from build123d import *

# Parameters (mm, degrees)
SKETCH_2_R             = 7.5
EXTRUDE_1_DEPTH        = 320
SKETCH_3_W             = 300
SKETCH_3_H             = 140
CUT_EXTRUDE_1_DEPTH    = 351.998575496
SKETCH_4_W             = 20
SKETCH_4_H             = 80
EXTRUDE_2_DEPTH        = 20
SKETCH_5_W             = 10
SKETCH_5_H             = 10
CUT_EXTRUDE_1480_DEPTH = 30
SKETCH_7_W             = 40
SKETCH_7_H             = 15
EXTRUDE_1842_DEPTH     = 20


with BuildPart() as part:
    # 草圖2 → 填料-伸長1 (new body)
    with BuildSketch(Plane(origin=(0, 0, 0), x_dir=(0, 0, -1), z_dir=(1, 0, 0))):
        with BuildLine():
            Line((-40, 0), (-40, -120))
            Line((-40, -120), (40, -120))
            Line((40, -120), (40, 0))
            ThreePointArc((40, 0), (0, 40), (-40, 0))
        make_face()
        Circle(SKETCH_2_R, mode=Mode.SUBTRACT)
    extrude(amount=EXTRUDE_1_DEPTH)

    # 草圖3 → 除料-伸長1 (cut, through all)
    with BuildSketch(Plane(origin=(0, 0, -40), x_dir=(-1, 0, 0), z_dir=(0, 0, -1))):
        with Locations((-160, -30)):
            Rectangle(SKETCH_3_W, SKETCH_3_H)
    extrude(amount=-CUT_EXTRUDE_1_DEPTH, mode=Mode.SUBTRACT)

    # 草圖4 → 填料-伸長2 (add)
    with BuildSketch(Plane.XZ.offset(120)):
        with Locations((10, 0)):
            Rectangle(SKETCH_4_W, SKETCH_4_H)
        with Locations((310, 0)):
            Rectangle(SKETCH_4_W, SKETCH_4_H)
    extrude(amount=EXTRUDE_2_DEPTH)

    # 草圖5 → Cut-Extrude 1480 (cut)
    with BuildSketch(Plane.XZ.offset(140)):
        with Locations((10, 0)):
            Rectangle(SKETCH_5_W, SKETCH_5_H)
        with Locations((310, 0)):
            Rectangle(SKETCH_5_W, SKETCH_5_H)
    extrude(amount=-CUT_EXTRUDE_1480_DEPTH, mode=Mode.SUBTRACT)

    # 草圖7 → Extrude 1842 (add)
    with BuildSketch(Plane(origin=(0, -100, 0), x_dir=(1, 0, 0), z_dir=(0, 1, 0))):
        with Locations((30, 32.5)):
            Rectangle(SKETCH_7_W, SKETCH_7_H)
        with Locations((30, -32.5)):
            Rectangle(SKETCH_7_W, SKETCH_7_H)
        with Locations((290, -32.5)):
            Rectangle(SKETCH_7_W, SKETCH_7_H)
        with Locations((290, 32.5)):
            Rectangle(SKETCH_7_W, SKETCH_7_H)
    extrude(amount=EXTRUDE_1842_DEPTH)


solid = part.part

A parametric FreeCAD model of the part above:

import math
import FreeCAD as App
import Part
import Sketcher

V = App.Vector


def add_polygon(sketch, points):
    """Adds a closed chain of lines whose ends are joined by coincident constraints."""
    first, n = sketch.GeometryCount, len(points)
    for a, b in zip(points, points[1:] + points[:1]):
        sketch.addGeometry(Part.LineSegment(App.Vector(*a, 0), App.Vector(*b, 0)), False)
    for i in range(n):
        sketch.addConstraint(Sketcher.Constraint("Coincident", first + i, 2, first + (i + 1) % n, 1))

doc = App.newDocument("Part")
body = doc.addObject("PartDesign::Body", "Body")

# Sketch on YZ plane
sketch1 = body.newObject("Sketcher::SketchObject", "Sketch")
sketch1.AttachmentSupport = (doc.getObject("YZ_Plane"), [""])
sketch1.MapMode = "FlatFace"
sketch1.addGeometry([
    Part.LineSegment(V(0, 40, 0), V(-120, 40, 0)),  # 0
    Part.LineSegment(V(-120, 40, 0), V(-120, -40, 0)),  # 1
    Part.LineSegment(V(-120, -40, 0), V(0, -40, 0)),  # 2
    Part.ArcOfCircle(Part.Circle(V(0, 0, 0), V(0, 0, 1), 40), math.radians(-90), math.radians(90)),  # 3
    Part.Circle(V(0, 0, 0), V(0, 0, 1), 8),  # 4
], False)
sketch1.addConstraint([
    Sketcher.Constraint("Coincident", 0, 2, 1, 1),
    Sketcher.Constraint("Coincident", 1, 2, 2, 1),
    Sketcher.Constraint("Tangent", 2, 2, 3, 1),
    Sketcher.Constraint("Tangent", 3, 2, 0, 1),
    Sketcher.Constraint("Horizontal", 0),
    Sketcher.Constraint("Vertical", 1),
    Sketcher.Constraint("Horizontal", 2),
    Sketcher.Constraint("Coincident", 3, 3, -1, 1),
    Sketcher.Constraint("Coincident", 4, 3, -1, 1),
    Sketcher.Constraint("Diameter", 4, 15.0),
    Sketcher.Constraint("Radius", 3, 40.0),
    Sketcher.Constraint("DistanceX", 0, 2, 0, 1, 120.0),
])
pad1 = body.newObject("PartDesign::Pad", "Pad")
pad1.Profile = sketch1
pad1.Length = 320

# Sketch on XY plane
sketch2 = body.newObject("Sketcher::SketchObject", "Sketch001")
sketch2.AttachmentSupport = (doc.getObject("XY_Plane"), [""])
sketch2.MapMode = "FlatFace"
sketch2.AttachmentOffset = App.Placement(V(0, 0, -40), App.Rotation())
add_polygon(sketch2, [(310, 40), (310, -100), (10, -100), (10, 40)])  # lines 0-3
sketch2.addConstraint([
    Sketcher.Constraint("Vertical", 0),
    Sketcher.Constraint("Horizontal", 1),
    Sketcher.Constraint("Vertical", 2),
    Sketcher.Constraint("Horizontal", 3),
    Sketcher.Constraint("DistanceX", 1, 2, 1, 1, 300.0),
    Sketcher.Constraint("DistanceY", 0, 2, 0, 1, 140.0),
    Sketcher.Constraint("DistanceX", -1, 1, 0, 2, 310.0),
    Sketcher.Constraint("DistanceY", 0, 2, -1, 1, 100.0),
])
pocket1 = body.newObject("PartDesign::Pocket", "Pocket")
pocket1.Profile = sketch2
pocket1.Type = "ThroughAll"
pocket1.Reversed = True

# Sketch on XZ plane
sketch3 = body.newObject("Sketcher::SketchObject", "Sketch002")
sketch3.AttachmentSupport = (doc.getObject("XZ_Plane"), [""])
sketch3.MapMode = "FlatFace"
sketch3.AttachmentOffset = App.Placement(V(0, 0, 120), App.Rotation())
add_polygon(sketch3, [(0, 40), (0, -40), (20, -40), (20, 40)])  # lines 0-3
add_polygon(sketch3, [(300, 40), (300, -40), (320, -40), (320, 40)])  # lines 4-7
sketch3.addConstraint([
    Sketcher.Constraint("Vertical", 0),
    Sketcher.Constraint("Horizontal", 1),
    Sketcher.Constraint("Vertical", 2),
    Sketcher.Constraint("Horizontal", 3),
    Sketcher.Constraint("Vertical", 4),
    Sketcher.Constraint("Horizontal", 5),
    Sketcher.Constraint("Vertical", 6),
    Sketcher.Constraint("Horizontal", 7),
    Sketcher.Constraint("Symmetric", 0, 2, 3, 2, -1, 1),
    Sketcher.Constraint("Horizontal", 1, 2, 4, 2),
    Sketcher.Constraint("Horizontal", 3, 2, 6, 2),
    Sketcher.Constraint("Equal", 3, 5),
    Sketcher.Constraint("DistanceX", 1, 1, 1, 2, 20.0),
    Sketcher.Constraint("DistanceY", 0, 2, 0, 1, 80.0),
    Sketcher.Constraint("DistanceX", -1, 1, 4, 2, 300.0),
])
pad2 = body.newObject("PartDesign::Pad", "Pad001")
pad2.Profile = sketch3
pad2.Length = 20

# Sketch on XZ plane
sketch4 = body.newObject("Sketcher::SketchObject", "Sketch003")
sketch4.AttachmentSupport = (doc.getObject("XZ_Plane"), [""])
sketch4.MapMode = "FlatFace"
sketch4.AttachmentOffset = App.Placement(V(0, 0, 140), App.Rotation())
add_polygon(sketch4, [(5, 5), (5, -5), (15, -5), (15, 5)])  # lines 0-3
add_polygon(sketch4, [(305, 5), (305, -5), (315, -5), (315, 5)])  # lines 4-7
sketch4.addConstraint([
    Sketcher.Constraint("Vertical", 0),
    Sketcher.Constraint("Horizontal", 1),
    Sketcher.Constraint("Vertical", 2),
    Sketcher.Constraint("Horizontal", 3),
    Sketcher.Constraint("Vertical", 4),
    Sketcher.Constraint("Horizontal", 5),
    Sketcher.Constraint("Vertical", 6),
    Sketcher.Constraint("Horizontal", 7),
    Sketcher.Constraint("Horizontal", 1, 2, 4, 2),
    Sketcher.Constraint("Horizontal", 3, 2, 6, 2),
    Sketcher.Constraint("Equal", 3, 5),
    Sketcher.Constraint("Equal", 7, 0),
    Sketcher.Constraint("DistanceX", 1, 1, 1, 2, 10.0),
    Sketcher.Constraint("DistanceX", -1, 1, 0, 2, 5.0),
    Sketcher.Constraint("DistanceY", 0, 2, -1, 1, 5.0),
    Sketcher.Constraint("DistanceX", -1, 1, 4, 2, 305.0),
])
pocket2 = body.newObject("PartDesign::Pocket", "Pocket001")
pocket2.Profile = sketch4
pocket2.Length = 30

# Sketch on XZ plane
sketch5 = body.newObject("Sketcher::SketchObject", "Sketch004")
sketch5.AttachmentSupport = (doc.getObject("XZ_Plane"), [""])
sketch5.MapMode = "FlatFace"
sketch5.AttachmentOffset = App.Placement(V(0, 0, 100), App.Rotation())
add_polygon(sketch5, [(10, -40), (10, -25), (50, -25), (50, -40)])  # lines 0-3
add_polygon(sketch5, [(10, 25), (10, 40), (50, 40), (50, 25)])  # lines 4-7
add_polygon(sketch5, [(270, 25), (270, 40), (310, 40), (310, 25)])  # lines 8-11
add_polygon(sketch5, [(270, -40), (270, -25), (310, -25), (310, -40)])  # lines 12-15
sketch5.addConstraint([
    Sketcher.Constraint("Vertical", 0),
    Sketcher.Constraint("Horizontal", 1),
    Sketcher.Constraint("Vertical", 2),
    Sketcher.Constraint("Horizontal", 3),
    Sketcher.Constraint("Vertical", 4),
    Sketcher.Constraint("Horizontal", 5),
    Sketcher.Constraint("Vertical", 6),
    Sketcher.Constraint("Horizontal", 7),
    Sketcher.Constraint("Vertical", 8),
    Sketcher.Constraint("Horizontal", 9),
    Sketcher.Constraint("Vertical", 10),
    Sketcher.Constraint("Horizontal", 11),
    Sketcher.Constraint("Vertical", 12),
    Sketcher.Constraint("Horizontal", 13),
    Sketcher.Constraint("Vertical", 14),
    Sketcher.Constraint("Horizontal", 15),
    Sketcher.Constraint("Symmetric", 3, 2, 4, 2, -1),
    Sketcher.Constraint("Symmetric", 1, 2, 6, 2, -1),
    Sketcher.Constraint("Symmetric", 11, 2, 12, 2, -1),
    Sketcher.Constraint("Symmetric", 9, 2, 14, 2, -1),
    Sketcher.Constraint("Horizontal", 5, 2, 8, 2),
    Sketcher.Constraint("Horizontal", 7, 2, 10, 2),
    Sketcher.Constraint("Equal", 7, 9),
    Sketcher.Constraint("DistanceX", 1, 1, 1, 2, 40.0),
    Sketcher.Constraint("DistanceY", 0, 1, 0, 2, 15.0),
    Sketcher.Constraint("DistanceX", -1, 1, 0, 2, 10.0),
    Sketcher.Constraint("DistanceY", 0, 2, -1, 1, 25.0),
    Sketcher.Constraint("DistanceX", -1, 1, 8, 2, 270.0),
])
pad3 = body.newObject("PartDesign::Pad", "Pad002")
pad3.Profile = sketch5
pad3.Length = 20
pad3.Reversed = True

doc.recompute()
